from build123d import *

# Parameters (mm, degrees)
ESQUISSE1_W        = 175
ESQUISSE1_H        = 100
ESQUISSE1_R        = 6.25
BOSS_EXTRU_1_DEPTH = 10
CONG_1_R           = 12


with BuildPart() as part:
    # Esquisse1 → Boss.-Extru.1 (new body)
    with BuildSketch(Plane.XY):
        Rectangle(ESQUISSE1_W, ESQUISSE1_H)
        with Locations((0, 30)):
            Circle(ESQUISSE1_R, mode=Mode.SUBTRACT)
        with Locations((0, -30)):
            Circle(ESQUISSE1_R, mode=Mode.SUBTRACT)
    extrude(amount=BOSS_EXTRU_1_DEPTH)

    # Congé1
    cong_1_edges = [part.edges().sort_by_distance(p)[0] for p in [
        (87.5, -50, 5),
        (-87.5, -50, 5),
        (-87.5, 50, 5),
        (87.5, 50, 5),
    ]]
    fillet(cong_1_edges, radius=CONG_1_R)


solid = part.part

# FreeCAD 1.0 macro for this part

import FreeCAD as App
import Part
import Sketcher
Q = App.Units.Quantity


def edges_at(feature, points):
    """Names of the edges that pass closest to the given points."""
    edges = feature.Shape.Edges
    near = lambda p: min(range(len(edges)), key=lambda i: edges[i].distToShape(Part.Vertex(*p))[0])
    return sorted({f"Edge{near(p) + 1}" for p in points})


def add_polygon(sketch, points):
    """Adds a closed chain of lines whose ends are joined by coincident constraints."""
    first, n = sketch.GeometryCount, len(points)
    for a, b in zip(points, points[1:] + points[:1]):
        sketch.addGeometry(Part.LineSegment(App.Vector(*a, 0), App.Vector(*b, 0)), False)
    for i in range(n):
        sketch.addConstraint(Sketcher.Constraint("Coincident", first + i, 2, first + (i + 1) % n, 1))

doc = App.newDocument("Part")
body = doc.addObject("PartDesign::Body", "Body")

# Sketch on XY plane
sketch1 = body.newObject("Sketcher::SketchObject", "Sketch")
sketch1.AttachmentSupport = (doc.getObject("XY_Plane"), [""])
sketch1.MapMode = "FlatFace"
add_polygon(sketch1, [(-88, 50), (-88, -50), (88, -50), (88, 50)])  # lines 0-3
sketch1.addGeometry(Part.Circle(App.Vector(0, -30, 0), App.Vector(0, 0, 1), 6), False)  # 4
sketch1.addGeometry(Part.Circle(App.Vector(0, 30, 0), App.Vector(0, 0, 1), 6), False)  # 5
sketch1.addConstraint([
    Sketcher.Constraint("Vertical", 0),
    Sketcher.Constraint("Horizontal", 1),
    Sketcher.Constraint("Vertical", 2),
    Sketcher.Constraint("Horizontal", 3),
    Sketcher.Constraint("Equal", 4, 5),
    Sketcher.Constraint("Symmetric", 4, 3, 5, 3, -1, 1),
    Sketcher.Constraint("Symmetric", 0, 2, 2, 2, -1, 1),
    Sketcher.Constraint("PointOnObject", 4, 3, -2),
    Sketcher.Constraint("Diameter", 4, Q("12.5 mm")),
    Sketcher.Constraint("DistanceX", 1, 1, 1, 2, Q("175 mm")),
    Sketcher.Constraint("DistanceY", 0, 2, 0, 1, Q("100 mm")),
    Sketcher.Constraint("DistanceY", 4, 3, -1, 1, Q("30 mm")),
])
pad1 = body.newObject("PartDesign::Pad", "Pad")
pad1.Profile = sketch1
pad1.Length = 10
doc.recompute()

fillet = body.newObject("PartDesign::Fillet", "Fillet")
fillet.Base = (pad1, edges_at(pad1, [
    (87.5, -50, 5),
    (-87.5, -50, 5),
    (-87.5, 50, 5),
    (87.5, 50, 5),
]))
fillet.Radius = 12

doc.recompute()
